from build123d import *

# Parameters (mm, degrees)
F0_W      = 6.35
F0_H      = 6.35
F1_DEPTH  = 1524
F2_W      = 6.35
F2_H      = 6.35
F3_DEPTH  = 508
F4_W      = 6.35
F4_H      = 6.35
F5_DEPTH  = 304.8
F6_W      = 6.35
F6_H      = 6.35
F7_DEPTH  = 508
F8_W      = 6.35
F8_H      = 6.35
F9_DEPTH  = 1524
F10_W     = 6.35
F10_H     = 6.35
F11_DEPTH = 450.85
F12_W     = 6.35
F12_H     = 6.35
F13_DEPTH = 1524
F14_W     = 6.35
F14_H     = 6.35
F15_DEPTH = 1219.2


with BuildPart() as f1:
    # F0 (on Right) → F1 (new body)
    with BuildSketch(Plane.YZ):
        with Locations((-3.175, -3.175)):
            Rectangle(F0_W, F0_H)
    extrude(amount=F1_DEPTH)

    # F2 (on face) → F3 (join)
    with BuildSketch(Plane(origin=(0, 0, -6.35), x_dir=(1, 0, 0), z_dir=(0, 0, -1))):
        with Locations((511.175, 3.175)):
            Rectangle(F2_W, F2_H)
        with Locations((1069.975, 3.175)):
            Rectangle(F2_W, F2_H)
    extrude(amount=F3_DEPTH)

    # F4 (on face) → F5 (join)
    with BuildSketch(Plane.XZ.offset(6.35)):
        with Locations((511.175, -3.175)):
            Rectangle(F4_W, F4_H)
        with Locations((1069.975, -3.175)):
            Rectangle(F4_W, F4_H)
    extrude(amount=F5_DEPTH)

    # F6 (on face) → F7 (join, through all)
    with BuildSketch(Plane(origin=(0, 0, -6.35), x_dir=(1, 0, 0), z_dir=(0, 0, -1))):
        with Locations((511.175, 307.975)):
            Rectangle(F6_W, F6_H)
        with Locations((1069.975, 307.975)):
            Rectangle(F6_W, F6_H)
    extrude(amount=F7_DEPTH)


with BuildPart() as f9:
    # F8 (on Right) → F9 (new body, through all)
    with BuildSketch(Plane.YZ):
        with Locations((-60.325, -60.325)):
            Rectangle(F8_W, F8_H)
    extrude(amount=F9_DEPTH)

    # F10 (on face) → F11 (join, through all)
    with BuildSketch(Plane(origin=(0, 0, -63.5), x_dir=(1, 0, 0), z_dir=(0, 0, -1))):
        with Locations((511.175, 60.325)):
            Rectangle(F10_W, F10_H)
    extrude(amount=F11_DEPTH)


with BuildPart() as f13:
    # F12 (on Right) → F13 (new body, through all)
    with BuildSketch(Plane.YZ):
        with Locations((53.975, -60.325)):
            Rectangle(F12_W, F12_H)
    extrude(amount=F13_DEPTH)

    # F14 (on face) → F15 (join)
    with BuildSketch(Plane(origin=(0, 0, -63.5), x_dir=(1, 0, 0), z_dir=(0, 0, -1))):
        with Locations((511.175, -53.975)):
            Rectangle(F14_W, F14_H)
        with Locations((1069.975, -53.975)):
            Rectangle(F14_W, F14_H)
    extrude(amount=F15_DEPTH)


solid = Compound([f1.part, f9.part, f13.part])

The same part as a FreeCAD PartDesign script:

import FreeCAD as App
import Part
import Sketcher

V = App.Vector
Q = App.Units.Quantity

doc = App.newDocument("Part")
params = doc.addObject("Spreadsheet::Sheet", "Params")
for row, (alias, value) in enumerate([
    ("sketch1_width", "0.25 in"),
    ("pad1_length", "60 in"),
    ("sketch2_width", "0.25 in"),
    ("pad2_length", "20 in"),
    ("sketch3_width", "0.25 in"),
    ("pad3_length", "12 in"),
    ("sketch4_width", "0.25 in"),
    ("pad4_length", "20 in"),
    ("sketch5_width", "0.25 in"),
    ("pad5_length", "60 in"),
    ("sketch6_width", "0.25 in"),
    ("pad6_length", "17.75 in"),
    ("sketch7_width", "0.25 in"),
    ("pad7_length", "60 in"),
    ("sketch8_width", "0.25 in"),
    ("pad8_length", "48 in"),
], start=1):
    params.set(f"A{row}", alias)
    params.set(f"B{row}", "=" + value)
    params.setAlias(f"B{row}", alias)

body = doc.addObject("PartDesign::Body", "Body")

# Sketch on YZ plane
sketch1 = doc.addObject("Sketcher::SketchObject", "Sketch")
body.addObject(sketch1)
sketch1.AttachmentSupport = (doc.YZ_Plane, [""])
sketch1.MapMode = "FlatFace"
sketch1.addGeometry(Part.LineSegment(V(-6.35, 0, 0), V(-6.35, -6.35, 0)), False)
sketch1.addGeometry(Part.LineSegment(V(-6.35, -6.35, 0), V(0, -6.35, 0)), False)
sketch1.addGeometry(Part.LineSegment(V(0, -6.35, 0), V(0, 0, 0)), False)
sketch1.addGeometry(Part.LineSegment(V(0, 0, 0), V(-6.35, 0, 0)), False)
sketch1.addConstraint(Sketcher.Constraint("Coincident", 0, 2, 1, 1))
sketch1.addConstraint(Sketcher.Constraint("Coincident", 1, 2, 2, 1))
sketch1.addConstraint(Sketcher.Constraint("Coincident", 2, 2, 3, 1))
sketch1.addConstraint(Sketcher.Constraint("Coincident", 3, 2, 0, 1))
sketch1.addConstraint(Sketcher.Constraint("Vertical", 0))
sketch1.addConstraint(Sketcher.Constraint("Horizontal", 1))
sketch1.addConstraint(Sketcher.Constraint("Vertical", 2))
sketch1.addConstraint(Sketcher.Constraint("Horizontal", 3))
sketch1.addConstraint(Sketcher.Constraint("Coincident", 2, 2, -1, 1))
sketch1.addConstraint(Sketcher.Constraint("Equal", 3, 0))
sketch1.addConstraint(Sketcher.Constraint("DistanceX", 1, 1, 1, 2, Q("0.25 in")))
sketch1.setExpression("Constraints[10]", "Params.sketch1_width")
pad1 = doc.addObject("PartDesign::Pad", "Pad")
body.addObject(pad1)
pad1.Profile = sketch1
pad1.setExpression("Length", "Params.pad1_length")

# Sketch on XY plane
sketch2 = doc.addObject("Sketcher::SketchObject", "Sketch001")
body.addObject(sketch2)
sketch2.AttachmentSupport = (doc.XY_Plane, [""])
sketch2.MapMode = "FlatFace"
sketch2.AttachmentOffset = App.Placement(V(0, 0, -0.25 * 25.4), App.Rotation())
sketch2.addGeometry(Part.LineSegment(V(508, -6.35, 0), V(508, 0, 0)), False)
sketch2.addGeometry(Part.LineSegment(V(508, 0, 0), V(514.35, 0, 0)), False)
sketch2.addGeometry(Part.LineSegment(V(514.35, 0, 0), V(514.35, -6.35, 0)), False)
sketch2.addGeometry(Part.LineSegment(V(514.35, -6.35, 0), V(508, -6.35, 0)), False)
sketch2.addGeometry(Part.LineSegment(V(1066.8, -6.35, 0), V(1066.8, 0, 0)), False)
sketch2.addGeometry(Part.LineSegment(V(1066.8, 0, 0), V(1073.15, 0, 0)), False)
sketch2.addGeometry(Part.LineSegment(V(1073.15, 0, 0), V(1073.15, -6.35, 0)), False)
sketch2.addGeometry(Part.LineSegment(V(1073.15, -6.35, 0), V(1066.8, -6.35, 0)), False)
sketch2.addConstraint(Sketcher.Constraint("Coincident", 0, 2, 1, 1))
sketch2.addConstraint(Sketcher.Constraint("Coincident", 1, 2, 2, 1))
sketch2.addConstraint(Sketcher.Constraint("Coincident", 2, 2, 3, 1))
sketch2.addConstraint(Sketcher.Constraint("Coincident", 3, 2, 0, 1))
sketch2.addConstraint(Sketcher.Constraint("Coincident", 4, 2, 5, 1))
sketch2.addConstraint(Sketcher.Constraint("Coincident", 5, 2, 6, 1))
sketch2.addConstraint(Sketcher.Constraint("Coincident", 6, 2, 7, 1))
sketch2.addConstraint(Sketcher.Constraint("Coincident", 7, 2, 4, 1))
sketch2.addConstraint(Sketcher.Constraint("Vertical", 0))
sketch2.addConstraint(Sketcher.Constraint("Horizontal", 1))
sketch2.addConstraint(Sketcher.Constraint("Vertical", 2))
sketch2.addConstraint(Sketcher.Constraint("Horizontal", 3))
sketch2.addConstraint(Sketcher.Constraint("Vertical", 4))
sketch2.addConstraint(Sketcher.Constraint("Horizontal", 5))
sketch2.addConstraint(Sketcher.Constraint("Vertical", 6))
sketch2.addConstraint(Sketcher.Constraint("Horizontal", 7))
sketch2.addConstraint(Sketcher.Constraint("PointOnObject", 0, 2, -1))
sketch2.addConstraint(Sketcher.Constraint("PointOnObject", 4, 2, -1))
sketch2.addConstraint(Sketcher.Constraint("Horizontal", 3, 2, 6, 2))
sketch2.addConstraint(Sketcher.Constraint("Equal", 3, 5))
sketch2.addConstraint(Sketcher.Constraint("Equal", 7, 0))
sketch2.addConstraint(Sketcher.Constraint("DistanceX", -1, 1, 0, 2, Q("20 in")))
sketch2.addConstraint(Sketcher.Constraint("DistanceX", -1, 1, 4, 2, Q("42 in")))
sketch2.addConstraint(Sketcher.Constraint("DistanceX", 1, 1, 1, 2, Q("0.25 in")))
sketch2.setExpression("Constraints[23]", "Params.sketch2_width")
pad2 = doc.addObject("PartDesign::Pad", "Pad001")
body.addObject(pad2)
pad2.Profile = sketch2
pad2.setExpression("Length", "Params.pad2_length")
pad2.Reversed = True

# Sketch on XZ plane
sketch3 = doc.addObject("Sketcher::SketchObject", "Sketch002")
body.addObject(sketch3)
sketch3.AttachmentSupport = (doc.XZ_Plane, [""])
sketch3.MapMode = "FlatFace"
sketch3.AttachmentOffset = App.Placement(V(0, 0, 0.25 * 25.4), App.Rotation())
sketch3.addGeometry(Part.LineSegment(V(508, 0, 0), V(508, -6.35, 0)), False)
sketch3.addGeometry(Part.LineSegment(V(508, -6.35, 0), V(514.35, -6.35, 0)), False)
sketch3.addGeometry(Part.LineSegment(V(514.35, -6.35, 0), V(514.35, 0, 0)), False)
sketch3.addGeometry(Part.LineSegment(V(514.35, 0, 0), V(508, 0, 0)), False)
sketch3.addGeometry(Part.LineSegment(V(1066.8, 0, 0), V(1066.8, -6.35, 0)), False)
sketch3.addGeometry(Part.LineSegment(V(1066.8, -6.35, 0), V(1073.15, -6.35, 0)), False)
sketch3.addGeometry(Part.LineSegment(V(1073.15, -6.35, 0), V(1073.15, 0, 0)), False)
sketch3.addGeometry(Part.LineSegment(V(1073.15, 0, 0), V(1066.8, 0, 0)), False)
sketch3.addConstraint(Sketcher.Constraint("Coincident", 0, 2, 1, 1))
sketch3.addConstraint(Sketcher.Constraint("Coincident", 1, 2, 2, 1))
sketch3.addConstraint(Sketcher.Constraint("Coincident", 2, 2, 3, 1))
sketch3.addConstraint(Sketcher.Constraint("Coincident", 3, 2, 0, 1))
sketch3.addConstraint(Sketcher.Constraint("Coincident", 4, 2, 5, 1))
sketch3.addConstraint(Sketcher.Constraint("Coincident", 5, 2, 6, 1))
sketch3.addConstraint(Sketcher.Constraint("Coincident", 6, 2, 7, 1))
sketch3.addConstraint(Sketcher.Constraint("Coincident", 7, 2, 4, 1))
sketch3.addConstraint(Sketcher.Constraint("Vertical", 0))
sketch3.addConstraint(Sketcher.Constraint("Horizontal", 1))
sketch3.addConstraint(Sketcher.Constraint("Vertical", 2))
sketch3.addConstraint(Sketcher.Constraint("Horizontal", 3))
sketch3.addConstraint(Sketcher.Constraint("Vertical", 4))
sketch3.addConstraint(Sketcher.Constraint("Horizontal", 5))
sketch3.addConstraint(Sketcher.Constraint("Vertical", 6))
sketch3.addConstraint(Sketcher.Constraint("Horizontal", 7))
sketch3.addConstraint(Sketcher.Constraint("PointOnObject", 2, 2, -1))
sketch3.addConstraint(Sketcher.Constraint("PointOnObject", 6, 2, -1))
sketch3.addConstraint(Sketcher.Constraint("Horizontal", 1, 2, 4, 2))
sketch3.addConstraint(Sketcher.Constraint("Equal", 3, 5))
sketch3.addConstraint(Sketcher.Constraint("Equal", 7, 0))
sketch3.addConstraint(Sketcher.Constraint("DistanceX", -1, 1, 0, 2, Q("20 in")))
sketch3.addConstraint(Sketcher.Constraint("DistanceX", -1, 1, 4, 2, Q("42 in")))
sketch3.addConstraint(Sketcher.Constraint("DistanceX", 1, 1, 1, 2, Q("0.25 in")))
sketch3.setExpression("Constraints[23]", "Params.sketch3_width")
pad3 = doc.addObject("PartDesign::Pad", "Pad002")
body.addObject(pad3)
pad3.Profile = sketch3
pad3.setExpression("Length", "Params.pad3_length")

# Sketch on XY plane
sketch4 = doc.addObject("Sketcher::SketchObject", "Sketch003")
body.addObject(sketch4)
sketch4.AttachmentSupport = (doc.XY_Plane, [""])
sketch4.MapMode = "FlatFace"
sketch4.AttachmentOffset = App.Placement(V(0, 0, -0.25 * 25.4), App.Rotation())
sketch4.addGeometry(Part.LineSegment(V(508, -311.15, 0), V(508, -304.8, 0)), False)
sketch4.addGeometry(Part.LineSegment(V(508, -304.8, 0), V(514.35, -304.8, 0)), False)
sketch4.addGeometry(Part.LineSegment(V(514.35, -304.8, 0), V(514.35, -311.15, 0)), False)
sketch4.addGeometry(Part.LineSegment(V(514.35, -311.15, 0), V(508, -311.15, 0)), False)
sketch4.addGeometry(Part.LineSegment(V(1066.8, -311.15, 0), V(1066.8, -304.8, 0)), False)
sketch4.addGeometry(Part.LineSegment(V(1066.8, -304.8, 0), V(1073.15, -304.8, 0)), False)
sketch4.addGeometry(Part.LineSegment(V(1073.15, -304.8, 0), V(1073.15, -311.15, 0)), False)
sketch4.addGeometry(Part.LineSegment(V(1073.15, -311.15, 0), V(1066.8, -311.15, 0)), False)
sketch4.addConstraint(Sketcher.Constraint("Coincident", 0, 2, 1, 1))
sketch4.addConstraint(Sketcher.Constraint("Coincident", 1, 2, 2, 1))
sketch4.addConstraint(Sketcher.Constraint("Coincident", 2, 2, 3, 1))
sketch4.addConstraint(Sketcher.Constraint("Coincident", 3, 2, 0, 1))
sketch4.addConstraint(Sketcher.Constraint("Coincident", 4, 2, 5, 1))
sketch4.addConstraint(Sketcher.Constraint("Coincident", 5, 2, 6, 1))
sketch4.addConstraint(Sketcher.Constraint("Coincident", 6, 2, 7, 1))
sketch4.addConstraint(Sketcher.Constraint("Coincident", 7, 2, 4, 1))
sketch4.addConstraint(Sketcher.Constraint("Vertical", 0))
sketch4.addConstraint(Sketcher.Constraint("Horizontal", 1))
sketch4.addConstraint(Sketcher.Constraint("Vertical", 2))
sketch4.addConstraint(Sketcher.Constraint("Horizontal", 3))
sketch4.addConstraint(Sketcher.Constraint("Vertical", 4))
sketch4.addConstraint(Sketcher.Constraint("Horizontal", 5))
sketch4.addConstraint(Sketcher.Constraint("Vertical", 6))
sketch4.addConstraint(Sketcher.Constraint("Horizontal", 7))
sketch4.addConstraint(Sketcher.Constraint("Horizontal", 1, 2, 4, 2))
sketch4.addConstraint(Sketcher.Constraint("Horizontal", 3, 2, 6, 2))
sketch4.addConstraint(Sketcher.Constraint("Equal", 3, 5))
sketch4.addConstraint(Sketcher.Constraint("Equal", 7, 0))
sketch4.addConstraint(Sketcher.Constraint("DistanceX", -1, 1, 0, 2, Q("20 in")))
sketch4.addConstraint(Sketcher.Constraint("DistanceY", 0, 2, -1, 1, Q("12 in")))
sketch4.addConstraint(Sketcher.Constraint("DistanceX", -1, 1, 4, 2, Q("42 in")))
sketch4.addConstraint(Sketcher.Constraint("DistanceX", 1, 1, 1, 2, Q("0.25 in")))
sketch4.setExpression("Constraints[23]", "Params.sketch4_width")
pad4 = doc.addObject("PartDesign::Pad", "Pad003")
body.addObject(pad4)
pad4.Profile = sketch4
pad4.setExpression("Length", "Params.pad4_length")
pad4.Reversed = True
body2 = doc.addObject("PartDesign::Body", "Body001")

# Sketch on YZ plane
sketch5 = doc.addObject("Sketcher::SketchObject", "Sketch004")
body2.addObject(sketch5)
sketch5.AttachmentSupport = (doc.getObject("YZ_Plane001"), [""])
sketch5.MapMode = "FlatFace"
sketch5.addGeometry(Part.LineSegment(V(-63.5, -57.15, 0), V(-63.5, -63.5, 0)), False)
sketch5.addGeometry(Part.LineSegment(V(-63.5, -63.5, 0), V(-57.15, -63.5, 0)), False)
sketch5.addGeometry(Part.LineSegment(V(-57.15, -63.5, 0), V(-57.15, -57.15, 0)), False)
sketch5.addGeometry(Part.LineSegment(V(-57.15, -57.15, 0), V(-63.5, -57.15, 0)), False)
sketch5.addConstraint(Sketcher.Constraint("Coincident", 0, 2, 1, 1))
sketch5.addConstraint(Sketcher.Constraint("Coincident", 1, 2, 2, 1))
sketch5.addConstraint(Sketcher.Constraint("Coincident", 2, 2, 3, 1))
sketch5.addConstraint(Sketcher.Constraint("Coincident", 3, 2, 0, 1))
sketch5.addConstraint(Sketcher.Constraint("Vertical", 0))
sketch5.addConstraint(Sketcher.Constraint("Horizontal", 1))
sketch5.addConstraint(Sketcher.Constraint("Vertical", 2))
sketch5.addConstraint(Sketcher.Constraint("Horizontal", 3))
sketch5.addConstraint(Sketcher.Constraint("Equal", 3, 0))
sketch5.addConstraint(Sketcher.Constraint("DistanceX", 1, 1, 1, 2, Q("0.25 in")))
sketch5.addConstraint(Sketcher.Constraint("DistanceX", 0, 2, -1, 1, Q("2.5 in")))
sketch5.addConstraint(Sketcher.Constraint("DistanceY", 0, 2, -1, 1, Q("2.5 in")))
sketch5.setExpression("Constraints[9]", "Params.sketch5_width")
pad5 = doc.addObject("PartDesign::Pad", "Pad004")
body2.addObject(pad5)
pad5.Profile = sketch5
pad5.setExpression("Length", "Params.pad5_length")

# Sketch on XY plane
sketch6 = doc.addObject("Sketcher::SketchObject", "Sketch005")
body2.addObject(sketch6)
sketch6.AttachmentSupport = (doc.getObject("XY_Plane001"), [""])
sketch6.MapMode = "FlatFace"
sketch6.AttachmentOffset = App.Placement(V(0, 0, -2.5 * 25.4), App.Rotation())
sketch6.addGeometry(Part.LineSegment(V(508, -63.5, 0), V(508, -57.15, 0)), False)
sketch6.addGeometry(Part.LineSegment(V(508, -57.15, 0), V(514.35, -57.15, 0)), False)
sketch6.addGeometry(Part.LineSegment(V(514.35, -57.15, 0), V(514.35, -63.5, 0)), False)
sketch6.addGeometry(Part.LineSegment(V(514.35, -63.5, 0), V(508, -63.5, 0)), False)
sketch6.addConstraint(Sketcher.Constraint("Coincident", 0, 2, 1, 1))
sketch6.addConstraint(Sketcher.Constraint("Coincident", 1, 2, 2, 1))
sketch6.addConstraint(Sketcher.Constraint("Coincident", 2, 2, 3, 1))
sketch6.addConstraint(Sketcher.Constraint("Coincident", 3, 2, 0, 1))
sketch6.addConstraint(Sketcher.Constraint("Vertical", 0))
sketch6.addConstraint(Sketcher.Constraint("Horizontal", 1))
sketch6.addConstraint(Sketcher.Constraint("Vertical", 2))
sketch6.addConstraint(Sketcher.Constraint("Horizontal", 3))
sketch6.addConstraint(Sketcher.Constraint("Equal", 3, 0))
sketch6.addConstraint(Sketcher.Constraint("DistanceX", -1, 1, 0, 2, Q("20 in")))
sketch6.addConstraint(Sketcher.Constraint("DistanceX", 1, 1, 1, 2, Q("0.25 in")))
sketch6.addConstraint(Sketcher.Constraint("DistanceY", 2, 2, -1, 1, Q("2.5 in")))
sketch6.setExpression("Constraints[10]", "Params.sketch6_width")
pad6 = doc.addObject("PartDesign::Pad", "Pad005")
body2.addObject(pad6)
pad6.Profile = sketch6
pad6.setExpression("Length", "Params.pad6_length")
pad6.Reversed = True
body3 = doc.addObject("PartDesign::Body", "Body002")

# Sketch on YZ plane
sketch7 = doc.addObject("Sketcher::SketchObject", "Sketch006")
body3.addObject(sketch7)
sketch7.AttachmentSupport = (doc.getObject("YZ_Plane002"), [""])
sketch7.MapMode = "FlatFace"
sketch7.addGeometry(Part.LineSegment(V(50.8, -57.15, 0), V(50.8, -63.5, 0)), False)
sketch7.addGeometry(Part.LineSegment(V(50.8, -63.5, 0), V(57.15, -63.5, 0)), False)
sketch7.addGeometry(Part.LineSegment(V(57.15, -63.5, 0), V(57.15, -57.15, 0)), False)
sketch7.addGeometry(Part.LineSegment(V(57.15, -57.15, 0), V(50.8, -57.15, 0)), False)
sketch7.addConstraint(Sketcher.Constraint("Coincident", 0, 2, 1, 1))
sketch7.addConstraint(Sketcher.Constraint("Coincident", 1, 2, 2, 1))
sketch7.addConstraint(Sketcher.Constraint("Coincident", 2, 2, 3, 1))
sketch7.addConstraint(Sketcher.Constraint("Coincident", 3, 2, 0, 1))
sketch7.addConstraint(Sketcher.Constraint("Vertical", 0))
sketch7.addConstraint(Sketcher.Constraint("Horizontal", 1))
sketch7.addConstraint(Sketcher.Constraint("Vertical", 2))
sketch7.addConstraint(Sketcher.Constraint("Horizontal", 3))
sketch7.addConstraint(Sketcher.Constraint("Equal", 3, 0))
sketch7.addConstraint(Sketcher.Constraint("DistanceX", -1, 1, 0, 2, Q("2 in")))
sketch7.addConstraint(Sketcher.Constraint("DistanceX", 1, 1, 1, 2, Q("0.25 in")))
sketch7.addConstraint(Sketcher.Constraint("DistanceY", 0, 2, -1, 1, Q("2.5 in")))
sketch7.setExpression("Constraints[10]", "Params.sketch7_width")
pad7 = doc.addObject("PartDesign::Pad", "Pad006")
body3.addObject(pad7)
pad7.Profile = sketch7
pad7.setExpression("Length", "Params.pad7_length")

# Sketch on XY plane
sketch8 = doc.addObject("Sketcher::SketchObject", "Sketch007")
body3.addObject(sketch8)
sketch8.AttachmentSupport = (doc.getObject("XY_Plane002"), [""])
sketch8.MapMode = "FlatFace"
sketch8.AttachmentOffset = App.Placement(V(0, 0, -2.5 * 25.4), App.Rotation())
sketch8.addGeometry(Part.LineSegment(V(508, 50.8, 0), V(508, 57.15, 0)), False)
sketch8.addGeometry(Part.LineSegment(V(508, 57.15, 0), V(514.35, 57.15, 0)), False)
sketch8.addGeometry(Part.LineSegment(V(514.35, 57.15, 0), V(514.35, 50.8, 0)), False)
sketch8.addGeometry(Part.LineSegment(V(514.35, 50.8, 0), V(508, 50.8, 0)), False)
sketch8.addGeometry(Part.LineSegment(V(1066.8, 50.8, 0), V(1066.8, 57.15, 0)), False)
sketch8.addGeometry(Part.LineSegment(V(1066.8, 57.15, 0), V(1073.15, 57.15, 0)), False)
sketch8.addGeometry(Part.LineSegment(V(1073.15, 57.15, 0), V(1073.15, 50.8, 0)), False)
sketch8.addGeometry(Part.LineSegment(V(1073.15, 50.8, 0), V(1066.8, 50.8, 0)), False)
sketch8.addConstraint(Sketcher.Constraint("Coincident", 0, 2, 1, 1))
sketch8.addConstraint(Sketcher.Constraint("Coincident", 1, 2, 2, 1))
sketch8.addConstraint(Sketcher.Constraint("Coincident", 2, 2, 3, 1))
sketch8.addConstraint(Sketcher.Constraint("Coincident", 3, 2, 0, 1))
sketch8.addConstraint(Sketcher.Constraint("Coincident", 4, 2, 5, 1))
sketch8.addConstraint(Sketcher.Constraint("Coincident", 5, 2, 6, 1))
sketch8.addConstraint(Sketcher.Constraint("Coincident", 6, 2, 7, 1))
sketch8.addConstraint(Sketcher.Constraint("Coincident", 7, 2, 4, 1))
sketch8.addConstraint(Sketcher.Constraint("Vertical", 0))
sketch8.addConstraint(Sketcher.Constraint("Horizontal", 1))
sketch8.addConstraint(Sketcher.Constraint("Vertical", 2))
sketch8.addConstraint(Sketcher.Constraint("Horizontal", 3))
sketch8.addConstraint(Sketcher.Constraint("Vertical", 4))
sketch8.addConstraint(Sketcher.Constraint("Horizontal", 5))
sketch8.addConstraint(Sketcher.Constraint("Vertical", 6))
sketch8.addConstraint(Sketcher.Constraint("Horizontal", 7))
sketch8.addConstraint(Sketcher.Constraint("Horizontal", 1, 2, 4, 2))
sketch8.addConstraint(Sketcher.Constraint("Horizontal", 3, 2, 6, 2))
sketch8.addConstraint(Sketcher.Constraint("Equal", 3, 5))
sketch8.addConstraint(Sketcher.Constraint("Equal", 7, 0))
sketch8.addConstraint(Sketcher.Constraint("DistanceX", -1, 1, 0, 2, Q("20 in")))
sketch8.addConstraint(Sketcher.Constraint("DistanceY", -1, 1, 2, 2, Q("2 in")))
sketch8.addConstraint(Sketcher.Constraint("DistanceX", -1, 1, 4, 2, Q("42 in")))
sketch8.addConstraint(Sketcher.Constraint("DistanceX", 1, 1, 1, 2, Q("0.25 in")))
sketch8.setExpression("Constraints[23]", "Params.sketch8_width")
pad8 = doc.addObject("PartDesign::Pad", "Pad007")
body3.addObject(pad8)
pad8.Profile = sketch8
pad8.setExpression("Length", "Params.pad8_length")
pad8.Reversed = True

doc.recompute()
